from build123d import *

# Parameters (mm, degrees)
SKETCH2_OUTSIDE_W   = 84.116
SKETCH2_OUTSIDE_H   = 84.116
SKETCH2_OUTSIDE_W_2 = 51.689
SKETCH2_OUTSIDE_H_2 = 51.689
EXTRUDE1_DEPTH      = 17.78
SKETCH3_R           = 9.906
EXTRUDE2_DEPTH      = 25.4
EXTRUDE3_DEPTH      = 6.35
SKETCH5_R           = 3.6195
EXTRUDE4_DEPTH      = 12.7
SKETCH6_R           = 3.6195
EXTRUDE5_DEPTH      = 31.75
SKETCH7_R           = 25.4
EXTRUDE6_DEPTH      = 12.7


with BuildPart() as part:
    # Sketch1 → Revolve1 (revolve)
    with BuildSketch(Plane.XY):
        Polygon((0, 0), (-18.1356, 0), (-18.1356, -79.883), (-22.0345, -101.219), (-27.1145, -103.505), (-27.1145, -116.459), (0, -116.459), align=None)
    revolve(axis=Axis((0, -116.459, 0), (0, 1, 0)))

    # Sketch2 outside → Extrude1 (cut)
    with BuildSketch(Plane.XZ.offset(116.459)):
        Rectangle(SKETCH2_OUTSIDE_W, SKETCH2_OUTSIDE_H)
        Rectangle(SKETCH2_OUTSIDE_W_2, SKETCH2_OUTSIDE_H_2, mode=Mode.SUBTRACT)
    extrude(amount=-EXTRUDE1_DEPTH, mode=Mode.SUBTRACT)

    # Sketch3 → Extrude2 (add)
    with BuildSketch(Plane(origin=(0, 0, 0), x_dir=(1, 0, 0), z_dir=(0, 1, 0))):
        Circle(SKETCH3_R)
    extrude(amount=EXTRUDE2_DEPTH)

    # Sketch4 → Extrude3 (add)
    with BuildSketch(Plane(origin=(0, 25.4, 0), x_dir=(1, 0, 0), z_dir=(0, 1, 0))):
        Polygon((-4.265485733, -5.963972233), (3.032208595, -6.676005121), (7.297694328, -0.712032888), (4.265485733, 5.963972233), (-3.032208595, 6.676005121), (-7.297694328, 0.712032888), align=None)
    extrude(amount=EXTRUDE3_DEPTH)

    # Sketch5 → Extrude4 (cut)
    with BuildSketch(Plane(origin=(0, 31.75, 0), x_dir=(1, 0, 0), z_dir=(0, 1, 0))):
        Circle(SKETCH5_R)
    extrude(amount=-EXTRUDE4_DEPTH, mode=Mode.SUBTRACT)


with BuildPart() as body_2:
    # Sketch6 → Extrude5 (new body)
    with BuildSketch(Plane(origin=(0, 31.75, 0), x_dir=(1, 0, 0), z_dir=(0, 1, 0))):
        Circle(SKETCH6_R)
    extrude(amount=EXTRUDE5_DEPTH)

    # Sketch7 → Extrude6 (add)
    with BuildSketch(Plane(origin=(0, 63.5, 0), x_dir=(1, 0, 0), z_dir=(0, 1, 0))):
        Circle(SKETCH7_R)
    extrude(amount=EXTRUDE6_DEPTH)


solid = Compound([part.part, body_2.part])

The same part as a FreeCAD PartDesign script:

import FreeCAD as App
import Part
import Sketcher
Q = App.Units.Quantity

doc = App.newDocument("Part")
body = doc.addObject("PartDesign::Body", "Body")

sketch1 = doc.addObject("Sketcher::SketchObject", "Sketch")
body.addObject(sketch1)
sketch1.AttachmentSupport = (doc.XY_Plane, [""])
sketch1.MapMode = "FlatFace"
sketch1.addGeometry(Part.LineSegment(App.Vector(0, 0, 0), App.Vector(-18, 0, 0)), False)
sketch1.addGeometry(Part.LineSegment(App.Vector(-18, 0, 0), App.Vector(-18, -80, 0)), False)
sketch1.addGeometry(Part.LineSegment(App.Vector(-18, -80, 0), App.Vector(-22, -101, 0)), False)
sketch1.addGeometry(Part.LineSegment(App.Vector(-22, -101, 0), App.Vector(-27, -104, 0)), False)
sketch1.addGeometry(Part.LineSegment(App.Vector(-27, -104, 0), App.Vector(-27, -116, 0)), False)
sketch1.addGeometry(Part.LineSegment(App.Vector(-27, -116, 0), App.Vector(0, -116, 0)), False)
sketch1.addGeometry(Part.LineSegment(App.Vector(0, -116, 0), App.Vector(0, 0, 0)), False)
sketch1.addConstraint(Sketcher.Constraint("Coincident", 0, 2, 1, 1))
sketch1.addConstraint(Sketcher.Constraint("Coincident", 1, 2, 2, 1))
sketch1.addConstraint(Sketcher.Constraint("Coincident", 2, 2, 3, 1))
sketch1.addConstraint(Sketcher.Constraint("Coincident", 3, 2, 4, 1))
sketch1.addConstraint(Sketcher.Constraint("Coincident", 4, 2, 5, 1))
sketch1.addConstraint(Sketcher.Constraint("Coincident", 5, 2, 6, 1))
sketch1.addConstraint(Sketcher.Constraint("Coincident", 6, 2, 0, 1))
sketch1.addConstraint(Sketcher.Constraint("Horizontal", 0))
sketch1.addConstraint(Sketcher.Constraint("Vertical", 1))
sketch1.addConstraint(Sketcher.Constraint("Vertical", 4))
sketch1.addConstraint(Sketcher.Constraint("Horizontal", 5))
sketch1.addConstraint(Sketcher.Constraint("Vertical", 6))
sketch1.addConstraint(Sketcher.Constraint("Coincident", 6, 2, -1, 1))
sketch1.addConstraint(Sketcher.Constraint("DistanceY", 4, 2, 4, 1, Q("0.51 in")))
sketch1.addConstraint(Sketcher.Constraint("DistanceX", 3, 2, 2, 2, Q("0.2 in")))
sketch1.addConstraint(Sketcher.Constraint("DistanceY", 4, 2, 2, 2, Q("0.6 in")))
sketch1.addConstraint(Sketcher.Constraint("DistanceX", 0, 2, 0, 1, Q("0.714 in")))
sketch1.addConstraint(Sketcher.Constraint("DistanceY", 1, 2, 1, 1, Q("3.145 in")))
sketch1.addConstraint(Sketcher.Constraint("DistanceY", 6, 1, 6, 2, Q("4.585 in")))
sketch1.addConstraint(Sketcher.Constraint("DistanceX", 5, 1, 5, 2, Q("1.0675 in")))
revolution = doc.addObject("PartDesign::Revolution", "Revolution")
body.addObject(revolution)
revolution.Profile = sketch1
revolution.ReferenceAxis = (sketch1, ["V_Axis"])
revolution.Angle = 360

sketch2 = doc.addObject("Sketcher::SketchObject", "Sketch001")
body.addObject(sketch2)
sketch2.AttachmentSupport = (doc.XZ_Plane, [""])
sketch2.MapMode = "FlatFace"
sketch2.AttachmentOffset = App.Placement(App.Vector(0, 0, 4.585 * 25.4), App.Rotation())
sketch2.addGeometry(Part.LineSegment(App.Vector(-42, 42, 0), App.Vector(-42, -42, 0)), False)
sketch2.addGeometry(Part.LineSegment(App.Vector(-42, -42, 0), App.Vector(42, -42, 0)), False)
sketch2.addGeometry(Part.LineSegment(App.Vector(42, -42, 0), App.Vector(42, 42, 0)), False)
sketch2.addGeometry(Part.LineSegment(App.Vector(42, 42, 0), App.Vector(-42, 42, 0)), False)
sketch2.addGeometry(Part.LineSegment(App.Vector(26, -26, 0), App.Vector(-26, -26, 0)), False)
sketch2.addGeometry(Part.LineSegment(App.Vector(-26, -26, 0), App.Vector(-26, 26, 0)), False)
sketch2.addGeometry(Part.LineSegment(App.Vector(-26, 26, 0), App.Vector(26, 26, 0)), False)
sketch2.addGeometry(Part.LineSegment(App.Vector(26, 26, 0), App.Vector(26, -26, 0)), False)
sketch2.addConstraint(Sketcher.Constraint("Coincident", 0, 2, 1, 1))
sketch2.addConstraint(Sketcher.Constraint("Coincident", 1, 2, 2, 1))
sketch2.addConstraint(Sketcher.Constraint("Coincident", 2, 2, 3, 1))
sketch2.addConstraint(Sketcher.Constraint("Coincident", 3, 2, 0, 1))
sketch2.addConstraint(Sketcher.Constraint("Coincident", 4, 2, 5, 1))
sketch2.addConstraint(Sketcher.Constraint("Coincident", 5, 2, 6, 1))
sketch2.addConstraint(Sketcher.Constraint("Coincident", 6, 2, 7, 1))
sketch2.addConstraint(Sketcher.Constraint("Coincident", 7, 2, 4, 1))
sketch2.addConstraint(Sketcher.Constraint("Vertical", 0))
sketch2.addConstraint(Sketcher.Constraint("Horizontal", 1))
sketch2.addConstraint(Sketcher.Constraint("Vertical", 2))
sketch2.addConstraint(Sketcher.Constraint("Horizontal", 3))
sketch2.addConstraint(Sketcher.Constraint("Horizontal", 4))
sketch2.addConstraint(Sketcher.Constraint("Vertical", 5))
sketch2.addConstraint(Sketcher.Constraint("Horizontal", 6))
sketch2.addConstraint(Sketcher.Constraint("Vertical", 7))
sketch2.addConstraint(Sketcher.Constraint("Symmetric", 0, 2, 2, 2, -1, 1))
sketch2.addConstraint(Sketcher.Constraint("Symmetric", 4, 2, 6, 2, -1, 1))
sketch2.addConstraint(Sketcher.Constraint("Equal", 3, 0))
sketch2.addConstraint(Sketcher.Constraint("Equal", 6, 5))
sketch2.addConstraint(Sketcher.Constraint("DistanceX", 4, 2, 4, 1, Q("2.035 in")))
sketch2.addConstraint(Sketcher.Constraint("DistanceX", 1, 1, 1, 2, 84.116))
pocket1 = doc.addObject("PartDesign::Pocket", "Pocket")
body.addObject(pocket1)
pocket1.Profile = sketch2
pocket1.Length = Q("0.7 in")

sketch3 = doc.addObject("Sketcher::SketchObject", "Sketch002")
body.addObject(sketch3)
sketch3.AttachmentSupport = (doc.XZ_Plane, [""])
sketch3.MapMode = "FlatFace"
sketch3.addGeometry(Part.Circle(App.Vector(0, 0, 0), App.Vector(0, 0, 1), 10), False)
sketch3.addConstraint(Sketcher.Constraint("Coincident", 0, 3, -1, 1))
sketch3.addConstraint(Sketcher.Constraint("Diameter", 0, Q("0.78 in")))
pad1 = doc.addObject("PartDesign::Pad", "Pad")
body.addObject(pad1)
pad1.Profile = sketch3
pad1.Length = Q("1 in")
pad1.Reversed = True

sketch4 = doc.addObject("Sketcher::SketchObject", "Sketch003")
body.addObject(sketch4)
sketch4.AttachmentSupport = (doc.XZ_Plane, [""])
sketch4.MapMode = "FlatFace"
sketch4.AttachmentOffset = App.Placement(App.Vector(0, 0, -1 * 25.4), App.Rotation())
sketch4.addGeometry(Part.LineSegment(App.Vector(-4, 6, 0), App.Vector(3, 7, 0)), False)
sketch4.addGeometry(Part.LineSegment(App.Vector(3, 7, 0), App.Vector(7, 1, 0)), False)
sketch4.addGeometry(Part.LineSegment(App.Vector(7, 1, 0), App.Vector(4, -6, 0)), False)
sketch4.addGeometry(Part.LineSegment(App.Vector(4, -6, 0), App.Vector(-3, -7, 0)), False)
sketch4.addGeometry(Part.LineSegment(App.Vector(-3, -7, 0), App.Vector(-7, -1, 0)), False)
sketch4.addGeometry(Part.LineSegment(App.Vector(-7, -1, 0), App.Vector(-4, 6, 0)), False)
sketch4.addConstraint(Sketcher.Constraint("Coincident", 0, 2, 1, 1))
sketch4.addConstraint(Sketcher.Constraint("Coincident", 1, 2, 2, 1))
sketch4.addConstraint(Sketcher.Constraint("Coincident", 2, 2, 3, 1))
sketch4.addConstraint(Sketcher.Constraint("Coincident", 3, 2, 4, 1))
sketch4.addConstraint(Sketcher.Constraint("Coincident", 4, 2, 5, 1))
sketch4.addConstraint(Sketcher.Constraint("Coincident", 5, 2, 0, 1))
sketch4.addConstraint(Sketcher.Constraint("Symmetric", 0, 2, 3, 2, -1, 1))
sketch4.addConstraint(Sketcher.Constraint("Symmetric", 1, 2, 4, 2, -1, 1))
sketch4.addConstraint(Sketcher.Constraint("Symmetric", 2, 2, 5, 2, -1, 1))
sketch4.addConstraint(Sketcher.Constraint("Equal", 0, 1))
sketch4.addConstraint(Sketcher.Constraint("Equal", 1, 2))
sketch4.addConstraint(Sketcher.Constraint("Distance", 0, 7.332348))
sketch4.addConstraint(Sketcher.Constraint("DistanceX", -1, 1, 0, 2, 3.032209))
sketch4.addConstraint(Sketcher.Constraint("DistanceX", 2, 2, 1, 2, 3.032209))
sketch4.addConstraint(Sketcher.Constraint("DistanceY", 3, 2, 1, 2, 7.388038))
pad2 = doc.addObject("PartDesign::Pad", "Pad001")
body.addObject(pad2)
pad2.Profile = sketch4
pad2.Length = Q("0.25 in")
pad2.Reversed = True

sketch5 = doc.addObject("Sketcher::SketchObject", "Sketch004")
body.addObject(sketch5)
sketch5.AttachmentSupport = (doc.XZ_Plane, [""])
sketch5.MapMode = "FlatFace"
sketch5.AttachmentOffset = App.Placement(App.Vector(0, 0, -1.25 * 25.4), App.Rotation())
sketch5.addGeometry(Part.Circle(App.Vector(0, 0, 0), App.Vector(0, 0, 1), 3.6), False)
sketch5.addConstraint(Sketcher.Constraint("Coincident", 0, 3, -1, 1))
sketch5.addConstraint(Sketcher.Constraint("Diameter", 0, Q("0.285 in")))
pocket2 = doc.addObject("PartDesign::Pocket", "Pocket001")
body.addObject(pocket2)
pocket2.Profile = sketch5
pocket2.Length = Q("0.5 in")
pocket2.Reversed = True
body2 = doc.addObject("PartDesign::Body", "Body001")

sketch6 = doc.addObject("Sketcher::SketchObject", "Sketch005")
body2.addObject(sketch6)
sketch6.AttachmentSupport = (doc.getObject("XZ_Plane001"), [""])
sketch6.MapMode = "FlatFace"
sketch6.AttachmentOffset = App.Placement(App.Vector(0, 0, -1.25 * 25.4), App.Rotation())
sketch6.addGeometry(Part.Circle(App.Vector(0, 0, 0), App.Vector(0, 0, 1), 3.6), False)
sketch6.addConstraint(Sketcher.Constraint("Coincident", 0, 3, -1, 1))
sketch6.addConstraint(Sketcher.Constraint("Diameter", 0, Q("0.285 in")))
pad3 = doc.addObject("PartDesign::Pad", "Pad002")
body2.addObject(pad3)
pad3.Profile = sketch6
pad3.Length = Q("1.25 in")
pad3.Reversed = True

sketch7 = doc.addObject("Sketcher::SketchObject", "Sketch006")
body2.addObject(sketch7)
sketch7.AttachmentSupport = (doc.getObject("XZ_Plane001"), [""])
sketch7.MapMode = "FlatFace"
sketch7.AttachmentOffset = App.Placement(App.Vector(0, 0, -2.5 * 25.4), App.Rotation())
sketch7.addGeometry(Part.Circle(App.Vector(0, 0, 0), App.Vector(0, 0, 1), 25), False)
sketch7.addConstraint(Sketcher.Constraint("Coincident", 0, 3, -1, 1))
sketch7.addConstraint(Sketcher.Constraint("Diameter", 0, Q("2 in")))
pad4 = doc.addObject("PartDesign::Pad", "Pad003")
body2.addObject(pad4)
pad4.Profile = sketch7
pad4.Length = Q("0.5 in")
pad4.Reversed = True

doc.recompute()
